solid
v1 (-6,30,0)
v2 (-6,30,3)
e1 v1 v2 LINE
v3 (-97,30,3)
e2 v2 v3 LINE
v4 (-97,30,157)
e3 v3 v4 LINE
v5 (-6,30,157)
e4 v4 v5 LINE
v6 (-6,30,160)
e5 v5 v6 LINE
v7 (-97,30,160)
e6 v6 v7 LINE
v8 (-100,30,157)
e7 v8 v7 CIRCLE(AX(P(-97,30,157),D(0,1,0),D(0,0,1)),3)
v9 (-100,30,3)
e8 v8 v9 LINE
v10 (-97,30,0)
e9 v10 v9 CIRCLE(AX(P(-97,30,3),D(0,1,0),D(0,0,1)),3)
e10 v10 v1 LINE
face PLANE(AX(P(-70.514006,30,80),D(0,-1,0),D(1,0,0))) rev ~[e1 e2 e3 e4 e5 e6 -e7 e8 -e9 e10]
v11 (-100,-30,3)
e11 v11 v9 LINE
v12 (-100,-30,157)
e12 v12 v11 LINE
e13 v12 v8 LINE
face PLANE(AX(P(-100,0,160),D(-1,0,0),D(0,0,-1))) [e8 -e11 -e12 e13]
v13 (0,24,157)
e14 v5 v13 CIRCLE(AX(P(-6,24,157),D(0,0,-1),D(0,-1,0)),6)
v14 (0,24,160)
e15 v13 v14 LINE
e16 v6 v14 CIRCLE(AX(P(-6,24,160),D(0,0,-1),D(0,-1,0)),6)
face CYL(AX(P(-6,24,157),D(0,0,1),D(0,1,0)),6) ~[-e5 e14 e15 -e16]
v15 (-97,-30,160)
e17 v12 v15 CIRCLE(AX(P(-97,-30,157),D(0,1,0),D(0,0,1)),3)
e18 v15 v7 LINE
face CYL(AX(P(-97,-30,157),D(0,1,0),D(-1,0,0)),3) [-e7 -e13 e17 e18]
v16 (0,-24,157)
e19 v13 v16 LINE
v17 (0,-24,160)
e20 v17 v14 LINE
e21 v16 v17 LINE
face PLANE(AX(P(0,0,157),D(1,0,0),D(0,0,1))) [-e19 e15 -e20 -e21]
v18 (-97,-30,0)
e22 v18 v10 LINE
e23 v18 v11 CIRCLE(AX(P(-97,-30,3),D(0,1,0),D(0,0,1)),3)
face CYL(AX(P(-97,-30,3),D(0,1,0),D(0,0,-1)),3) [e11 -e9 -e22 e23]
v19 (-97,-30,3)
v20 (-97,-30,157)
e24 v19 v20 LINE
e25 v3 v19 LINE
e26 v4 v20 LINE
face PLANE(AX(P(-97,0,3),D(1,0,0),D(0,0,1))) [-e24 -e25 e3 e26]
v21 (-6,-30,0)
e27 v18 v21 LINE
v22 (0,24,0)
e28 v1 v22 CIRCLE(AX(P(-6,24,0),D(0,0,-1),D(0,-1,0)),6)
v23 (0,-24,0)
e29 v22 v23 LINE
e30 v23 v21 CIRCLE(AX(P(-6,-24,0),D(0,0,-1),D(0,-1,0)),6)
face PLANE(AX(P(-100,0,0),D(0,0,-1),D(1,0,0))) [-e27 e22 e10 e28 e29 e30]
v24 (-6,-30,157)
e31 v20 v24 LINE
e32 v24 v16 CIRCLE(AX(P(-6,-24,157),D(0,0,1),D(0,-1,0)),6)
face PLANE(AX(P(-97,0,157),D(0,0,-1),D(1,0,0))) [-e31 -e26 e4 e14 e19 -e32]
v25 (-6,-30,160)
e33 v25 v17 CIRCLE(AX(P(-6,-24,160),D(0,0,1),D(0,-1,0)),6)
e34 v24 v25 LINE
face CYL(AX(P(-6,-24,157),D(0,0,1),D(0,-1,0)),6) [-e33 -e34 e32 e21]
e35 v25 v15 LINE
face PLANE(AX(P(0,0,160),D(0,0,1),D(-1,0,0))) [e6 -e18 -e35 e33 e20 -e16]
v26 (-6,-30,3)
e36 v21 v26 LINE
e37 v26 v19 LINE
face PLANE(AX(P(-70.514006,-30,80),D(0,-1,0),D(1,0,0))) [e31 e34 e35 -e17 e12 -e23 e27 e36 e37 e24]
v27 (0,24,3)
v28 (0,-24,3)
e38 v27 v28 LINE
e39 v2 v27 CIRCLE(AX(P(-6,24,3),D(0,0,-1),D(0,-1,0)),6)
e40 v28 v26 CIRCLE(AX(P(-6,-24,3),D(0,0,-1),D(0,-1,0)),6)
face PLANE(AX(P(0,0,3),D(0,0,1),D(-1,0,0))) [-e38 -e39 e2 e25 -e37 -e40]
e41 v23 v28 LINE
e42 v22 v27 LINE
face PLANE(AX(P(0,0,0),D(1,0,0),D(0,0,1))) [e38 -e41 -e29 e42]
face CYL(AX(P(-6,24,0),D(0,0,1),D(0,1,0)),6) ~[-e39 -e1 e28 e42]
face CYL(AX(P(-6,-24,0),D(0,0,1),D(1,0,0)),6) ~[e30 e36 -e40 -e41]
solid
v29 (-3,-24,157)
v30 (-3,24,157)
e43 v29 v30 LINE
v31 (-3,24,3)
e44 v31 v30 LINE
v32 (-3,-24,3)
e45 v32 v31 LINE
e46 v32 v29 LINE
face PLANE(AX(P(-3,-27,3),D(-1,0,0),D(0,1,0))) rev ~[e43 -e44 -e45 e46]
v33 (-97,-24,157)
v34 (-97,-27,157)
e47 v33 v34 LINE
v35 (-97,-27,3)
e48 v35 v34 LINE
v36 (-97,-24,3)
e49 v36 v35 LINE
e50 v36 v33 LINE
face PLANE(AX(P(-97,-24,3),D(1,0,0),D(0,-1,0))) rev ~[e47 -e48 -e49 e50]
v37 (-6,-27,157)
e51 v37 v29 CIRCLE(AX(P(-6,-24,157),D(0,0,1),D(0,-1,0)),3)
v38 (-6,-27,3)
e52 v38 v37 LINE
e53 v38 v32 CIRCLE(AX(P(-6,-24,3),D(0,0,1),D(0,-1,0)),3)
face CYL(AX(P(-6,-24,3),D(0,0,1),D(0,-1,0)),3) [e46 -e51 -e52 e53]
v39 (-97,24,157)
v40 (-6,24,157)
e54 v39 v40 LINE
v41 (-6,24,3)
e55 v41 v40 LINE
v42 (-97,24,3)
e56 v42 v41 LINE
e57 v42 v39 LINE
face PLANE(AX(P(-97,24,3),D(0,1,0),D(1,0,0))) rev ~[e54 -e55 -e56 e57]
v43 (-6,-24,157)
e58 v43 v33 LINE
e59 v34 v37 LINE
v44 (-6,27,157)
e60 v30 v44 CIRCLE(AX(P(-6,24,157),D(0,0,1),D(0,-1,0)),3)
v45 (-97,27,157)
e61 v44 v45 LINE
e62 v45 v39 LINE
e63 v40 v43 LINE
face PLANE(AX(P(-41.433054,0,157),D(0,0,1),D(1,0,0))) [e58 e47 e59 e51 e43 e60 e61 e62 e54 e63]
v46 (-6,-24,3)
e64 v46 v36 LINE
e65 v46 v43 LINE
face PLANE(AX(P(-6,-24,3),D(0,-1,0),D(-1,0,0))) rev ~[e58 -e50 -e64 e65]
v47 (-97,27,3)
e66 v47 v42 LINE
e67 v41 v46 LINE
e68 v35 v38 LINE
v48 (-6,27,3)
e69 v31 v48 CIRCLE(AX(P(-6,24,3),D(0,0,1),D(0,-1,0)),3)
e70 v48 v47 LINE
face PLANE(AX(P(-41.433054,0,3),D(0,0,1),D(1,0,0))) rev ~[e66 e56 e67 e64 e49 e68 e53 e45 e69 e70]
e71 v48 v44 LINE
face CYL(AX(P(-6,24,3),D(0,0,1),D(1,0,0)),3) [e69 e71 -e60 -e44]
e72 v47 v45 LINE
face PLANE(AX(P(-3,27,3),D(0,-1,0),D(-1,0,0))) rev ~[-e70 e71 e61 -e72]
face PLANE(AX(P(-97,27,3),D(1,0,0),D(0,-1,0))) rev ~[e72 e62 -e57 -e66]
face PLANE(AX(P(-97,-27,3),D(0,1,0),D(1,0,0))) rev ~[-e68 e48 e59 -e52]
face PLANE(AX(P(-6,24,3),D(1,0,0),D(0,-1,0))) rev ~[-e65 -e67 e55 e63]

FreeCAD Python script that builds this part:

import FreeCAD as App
import Part
import Sketcher
from FreeCAD import Vector
Q = App.Units.Quantity


def edges_at(feature, points):
    """Names of the edges that pass closest to the given points."""
    edges = feature.Shape.Edges
    near = lambda p: min(range(len(edges)), key=lambda i: edges[i].distToShape(Part.Vertex(*p))[0])
    return sorted({f"Edge{near(p) + 1}" for p in points})

doc = App.newDocument("Part")
body = doc.addObject("PartDesign::Body", "Body")

sketch1 = body.newObject("Sketcher::SketchObject", "Sketch")
sketch1.AttachmentSupport = (doc.getObject("XZ_Plane"), [""])
sketch1.MapMode = "FlatFace"
sketch1.addGeometry([
    Part.LineSegment(Vector(-100, 0, 0), Vector(0, 0, 0)),
    Part.LineSegment(Vector(0, 0, 0), Vector(0, 3, 0)),
    Part.LineSegment(Vector(0, 3, 0), Vector(-97, 3, 0)),
    Part.LineSegment(Vector(-97, 3, 0), Vector(-97, 157, 0)),
    Part.LineSegment(Vector(-97, 157, 0), Vector(0, 157, 0)),
    Part.LineSegment(Vector(0, 157, 0), Vector(0, 160, 0)),
    Part.LineSegment(Vector(0, 160, 0), Vector(-100, 160, 0)),
    Part.LineSegment(Vector(-100, 160, 0), Vector(-100, 0, 0)),
], False)
sketch1.addConstraint([
    Sketcher.Constraint("Coincident", 0, 2, 1, 1),
    Sketcher.Constraint("Coincident", 1, 2, 2, 1),
    Sketcher.Constraint("Coincident", 2, 2, 3, 1),
    Sketcher.Constraint("Coincident", 3, 2, 4, 1),
    Sketcher.Constraint("Coincident", 4, 2, 5, 1),
    Sketcher.Constraint("Coincident", 5, 2, 6, 1),
    Sketcher.Constraint("Coincident", 6, 2, 7, 1),
    Sketcher.Constraint("Coincident", 7, 2, 0, 1),
    Sketcher.Constraint("Horizontal", 0),
    Sketcher.Constraint("Vertical", 1),
    Sketcher.Constraint("Horizontal", 2),
    Sketcher.Constraint("Vertical", 3),
    Sketcher.Constraint("Horizontal", 4),
    Sketcher.Constraint("Vertical", 5),
    Sketcher.Constraint("Horizontal", 6),
    Sketcher.Constraint("Vertical", 7),
    Sketcher.Constraint("Coincident", 0, 2, -1, 1),
    Sketcher.Constraint("PointOnObject", 4, 2, -2),
    Sketcher.Constraint("Equal", 1, 5),
    Sketcher.Constraint("DistanceX", 0, 1, 0, 2, Q("100 mm")),
    Sketcher.Constraint("DistanceX", 2, 2, 2, 1, Q("97 mm")),
    Sketcher.Constraint("DistanceY", 1, 1, 1, 2, Q("3 mm")),
    Sketcher.Constraint("DistanceY", 3, 1, 3, 2, Q("154 mm")),
])
pad1 = body.newObject("PartDesign::Pad", "Pad")
pad1.Profile = sketch1
pad1.Length = 60
pad1.Midplane = True
doc.recompute()

fillet = body.newObject("PartDesign::Fillet", "Fillet")
fillet.Base = (pad1, edges_at(pad1, [(-100, 0, 160), (-100, 0, 0)]))
fillet.Radius = 3
doc.recompute()

fillet2 = body.newObject("PartDesign::Fillet", "Fillet001")
fillet2.Base = (fillet, edges_at(fillet, [
    (0, -30, 158.5),
    (0, 30, 158.5),
    (0, 30, 1.5),
    (0, -30, 1.5),
]))
fillet2.Radius = 6
body2 = doc.addObject("PartDesign::Body", "Body001")

sketch2 = body2.newObject("Sketcher::SketchObject", "Sketch001")
sketch2.AttachmentSupport = (doc.getObject("XY_Plane001"), [""])
sketch2.MapMode = "FlatFace"
sketch2.AttachmentOffset = App.Placement(Vector(0, 0, 3), App.Rotation())
sketch2.addGeometry([
    Part.LineSegment(Vector(-97, -24, 0), Vector(-97, -27, 0)),
    Part.LineSegment(Vector(-97, -27, 0), Vector(-3, -27, 0)),
    Part.LineSegment(Vector(-3, -27, 0), Vector(-3, 27, 0)),
    Part.LineSegment(Vector(-3, 27, 0), Vector(-97, 27, 0)),
    Part.LineSegment(Vector(-97, 27, 0), Vector(-97, 24, 0)),
    Part.LineSegment(Vector(-97, 24, 0), Vector(-6, 24, 0)),
    Part.LineSegment(Vector(-6, 24, 0), Vector(-6, -24, 0)),
    Part.LineSegment(Vector(-6, -24, 0), Vector(-97, -24, 0)),
], False)
sketch2.addConstraint([
    Sketcher.Constraint("Coincident", 0, 2, 1, 1),
    Sketcher.Constraint("Coincident", 1, 2, 2, 1),
    Sketcher.Constraint("Coincident", 2, 2, 3, 1),
    Sketcher.Constraint("Coincident", 3, 2, 4, 1),
    Sketcher.Constraint("Coincident", 4, 2, 5, 1),
    Sketcher.Constraint("Coincident", 5, 2, 6, 1),
    Sketcher.Constraint("Coincident", 6, 2, 7, 1),
    Sketcher.Constraint("Coincident", 7, 2, 0, 1),
    Sketcher.Constraint("Vertical", 0),
    Sketcher.Constraint("Horizontal", 1),
    Sketcher.Constraint("Vertical", 2),
    Sketcher.Constraint("Horizontal", 3),
    Sketcher.Constraint("Vertical", 4),
    Sketcher.Constraint("Horizontal", 5),
    Sketcher.Constraint("Vertical", 6),
    Sketcher.Constraint("Horizontal", 7),
    Sketcher.Constraint("Symmetric", 0, 2, 3, 2, -1),
    Sketcher.Constraint("Equal", 0, 4),
    Sketcher.Constraint("DistanceX", 1, 1, 1, 2, Q("94 mm")),
    Sketcher.Constraint("DistanceX", 5, 1, 5, 2, Q("91 mm")),
    Sketcher.Constraint("DistanceY", 0, 2, 0, 1, Q("3 mm")),
    Sketcher.Constraint("DistanceY", 2, 1, 2, 2, Q("54 mm")),
    Sketcher.Constraint("DistanceX", 0, 2, -1, 1, Q("97 mm")),
])
pad2 = body2.newObject("PartDesign::Pad", "Pad001")
pad2.Profile = sketch2
pad2.Length = 154
doc.recompute()

fillet3 = body2.newObject("PartDesign::Fillet", "Fillet002")
fillet3.Base = (pad2, edges_at(pad2, [(-3, -27, 80), (-3, 27, 80)]))
fillet3.Radius = 3

doc.recompute()
